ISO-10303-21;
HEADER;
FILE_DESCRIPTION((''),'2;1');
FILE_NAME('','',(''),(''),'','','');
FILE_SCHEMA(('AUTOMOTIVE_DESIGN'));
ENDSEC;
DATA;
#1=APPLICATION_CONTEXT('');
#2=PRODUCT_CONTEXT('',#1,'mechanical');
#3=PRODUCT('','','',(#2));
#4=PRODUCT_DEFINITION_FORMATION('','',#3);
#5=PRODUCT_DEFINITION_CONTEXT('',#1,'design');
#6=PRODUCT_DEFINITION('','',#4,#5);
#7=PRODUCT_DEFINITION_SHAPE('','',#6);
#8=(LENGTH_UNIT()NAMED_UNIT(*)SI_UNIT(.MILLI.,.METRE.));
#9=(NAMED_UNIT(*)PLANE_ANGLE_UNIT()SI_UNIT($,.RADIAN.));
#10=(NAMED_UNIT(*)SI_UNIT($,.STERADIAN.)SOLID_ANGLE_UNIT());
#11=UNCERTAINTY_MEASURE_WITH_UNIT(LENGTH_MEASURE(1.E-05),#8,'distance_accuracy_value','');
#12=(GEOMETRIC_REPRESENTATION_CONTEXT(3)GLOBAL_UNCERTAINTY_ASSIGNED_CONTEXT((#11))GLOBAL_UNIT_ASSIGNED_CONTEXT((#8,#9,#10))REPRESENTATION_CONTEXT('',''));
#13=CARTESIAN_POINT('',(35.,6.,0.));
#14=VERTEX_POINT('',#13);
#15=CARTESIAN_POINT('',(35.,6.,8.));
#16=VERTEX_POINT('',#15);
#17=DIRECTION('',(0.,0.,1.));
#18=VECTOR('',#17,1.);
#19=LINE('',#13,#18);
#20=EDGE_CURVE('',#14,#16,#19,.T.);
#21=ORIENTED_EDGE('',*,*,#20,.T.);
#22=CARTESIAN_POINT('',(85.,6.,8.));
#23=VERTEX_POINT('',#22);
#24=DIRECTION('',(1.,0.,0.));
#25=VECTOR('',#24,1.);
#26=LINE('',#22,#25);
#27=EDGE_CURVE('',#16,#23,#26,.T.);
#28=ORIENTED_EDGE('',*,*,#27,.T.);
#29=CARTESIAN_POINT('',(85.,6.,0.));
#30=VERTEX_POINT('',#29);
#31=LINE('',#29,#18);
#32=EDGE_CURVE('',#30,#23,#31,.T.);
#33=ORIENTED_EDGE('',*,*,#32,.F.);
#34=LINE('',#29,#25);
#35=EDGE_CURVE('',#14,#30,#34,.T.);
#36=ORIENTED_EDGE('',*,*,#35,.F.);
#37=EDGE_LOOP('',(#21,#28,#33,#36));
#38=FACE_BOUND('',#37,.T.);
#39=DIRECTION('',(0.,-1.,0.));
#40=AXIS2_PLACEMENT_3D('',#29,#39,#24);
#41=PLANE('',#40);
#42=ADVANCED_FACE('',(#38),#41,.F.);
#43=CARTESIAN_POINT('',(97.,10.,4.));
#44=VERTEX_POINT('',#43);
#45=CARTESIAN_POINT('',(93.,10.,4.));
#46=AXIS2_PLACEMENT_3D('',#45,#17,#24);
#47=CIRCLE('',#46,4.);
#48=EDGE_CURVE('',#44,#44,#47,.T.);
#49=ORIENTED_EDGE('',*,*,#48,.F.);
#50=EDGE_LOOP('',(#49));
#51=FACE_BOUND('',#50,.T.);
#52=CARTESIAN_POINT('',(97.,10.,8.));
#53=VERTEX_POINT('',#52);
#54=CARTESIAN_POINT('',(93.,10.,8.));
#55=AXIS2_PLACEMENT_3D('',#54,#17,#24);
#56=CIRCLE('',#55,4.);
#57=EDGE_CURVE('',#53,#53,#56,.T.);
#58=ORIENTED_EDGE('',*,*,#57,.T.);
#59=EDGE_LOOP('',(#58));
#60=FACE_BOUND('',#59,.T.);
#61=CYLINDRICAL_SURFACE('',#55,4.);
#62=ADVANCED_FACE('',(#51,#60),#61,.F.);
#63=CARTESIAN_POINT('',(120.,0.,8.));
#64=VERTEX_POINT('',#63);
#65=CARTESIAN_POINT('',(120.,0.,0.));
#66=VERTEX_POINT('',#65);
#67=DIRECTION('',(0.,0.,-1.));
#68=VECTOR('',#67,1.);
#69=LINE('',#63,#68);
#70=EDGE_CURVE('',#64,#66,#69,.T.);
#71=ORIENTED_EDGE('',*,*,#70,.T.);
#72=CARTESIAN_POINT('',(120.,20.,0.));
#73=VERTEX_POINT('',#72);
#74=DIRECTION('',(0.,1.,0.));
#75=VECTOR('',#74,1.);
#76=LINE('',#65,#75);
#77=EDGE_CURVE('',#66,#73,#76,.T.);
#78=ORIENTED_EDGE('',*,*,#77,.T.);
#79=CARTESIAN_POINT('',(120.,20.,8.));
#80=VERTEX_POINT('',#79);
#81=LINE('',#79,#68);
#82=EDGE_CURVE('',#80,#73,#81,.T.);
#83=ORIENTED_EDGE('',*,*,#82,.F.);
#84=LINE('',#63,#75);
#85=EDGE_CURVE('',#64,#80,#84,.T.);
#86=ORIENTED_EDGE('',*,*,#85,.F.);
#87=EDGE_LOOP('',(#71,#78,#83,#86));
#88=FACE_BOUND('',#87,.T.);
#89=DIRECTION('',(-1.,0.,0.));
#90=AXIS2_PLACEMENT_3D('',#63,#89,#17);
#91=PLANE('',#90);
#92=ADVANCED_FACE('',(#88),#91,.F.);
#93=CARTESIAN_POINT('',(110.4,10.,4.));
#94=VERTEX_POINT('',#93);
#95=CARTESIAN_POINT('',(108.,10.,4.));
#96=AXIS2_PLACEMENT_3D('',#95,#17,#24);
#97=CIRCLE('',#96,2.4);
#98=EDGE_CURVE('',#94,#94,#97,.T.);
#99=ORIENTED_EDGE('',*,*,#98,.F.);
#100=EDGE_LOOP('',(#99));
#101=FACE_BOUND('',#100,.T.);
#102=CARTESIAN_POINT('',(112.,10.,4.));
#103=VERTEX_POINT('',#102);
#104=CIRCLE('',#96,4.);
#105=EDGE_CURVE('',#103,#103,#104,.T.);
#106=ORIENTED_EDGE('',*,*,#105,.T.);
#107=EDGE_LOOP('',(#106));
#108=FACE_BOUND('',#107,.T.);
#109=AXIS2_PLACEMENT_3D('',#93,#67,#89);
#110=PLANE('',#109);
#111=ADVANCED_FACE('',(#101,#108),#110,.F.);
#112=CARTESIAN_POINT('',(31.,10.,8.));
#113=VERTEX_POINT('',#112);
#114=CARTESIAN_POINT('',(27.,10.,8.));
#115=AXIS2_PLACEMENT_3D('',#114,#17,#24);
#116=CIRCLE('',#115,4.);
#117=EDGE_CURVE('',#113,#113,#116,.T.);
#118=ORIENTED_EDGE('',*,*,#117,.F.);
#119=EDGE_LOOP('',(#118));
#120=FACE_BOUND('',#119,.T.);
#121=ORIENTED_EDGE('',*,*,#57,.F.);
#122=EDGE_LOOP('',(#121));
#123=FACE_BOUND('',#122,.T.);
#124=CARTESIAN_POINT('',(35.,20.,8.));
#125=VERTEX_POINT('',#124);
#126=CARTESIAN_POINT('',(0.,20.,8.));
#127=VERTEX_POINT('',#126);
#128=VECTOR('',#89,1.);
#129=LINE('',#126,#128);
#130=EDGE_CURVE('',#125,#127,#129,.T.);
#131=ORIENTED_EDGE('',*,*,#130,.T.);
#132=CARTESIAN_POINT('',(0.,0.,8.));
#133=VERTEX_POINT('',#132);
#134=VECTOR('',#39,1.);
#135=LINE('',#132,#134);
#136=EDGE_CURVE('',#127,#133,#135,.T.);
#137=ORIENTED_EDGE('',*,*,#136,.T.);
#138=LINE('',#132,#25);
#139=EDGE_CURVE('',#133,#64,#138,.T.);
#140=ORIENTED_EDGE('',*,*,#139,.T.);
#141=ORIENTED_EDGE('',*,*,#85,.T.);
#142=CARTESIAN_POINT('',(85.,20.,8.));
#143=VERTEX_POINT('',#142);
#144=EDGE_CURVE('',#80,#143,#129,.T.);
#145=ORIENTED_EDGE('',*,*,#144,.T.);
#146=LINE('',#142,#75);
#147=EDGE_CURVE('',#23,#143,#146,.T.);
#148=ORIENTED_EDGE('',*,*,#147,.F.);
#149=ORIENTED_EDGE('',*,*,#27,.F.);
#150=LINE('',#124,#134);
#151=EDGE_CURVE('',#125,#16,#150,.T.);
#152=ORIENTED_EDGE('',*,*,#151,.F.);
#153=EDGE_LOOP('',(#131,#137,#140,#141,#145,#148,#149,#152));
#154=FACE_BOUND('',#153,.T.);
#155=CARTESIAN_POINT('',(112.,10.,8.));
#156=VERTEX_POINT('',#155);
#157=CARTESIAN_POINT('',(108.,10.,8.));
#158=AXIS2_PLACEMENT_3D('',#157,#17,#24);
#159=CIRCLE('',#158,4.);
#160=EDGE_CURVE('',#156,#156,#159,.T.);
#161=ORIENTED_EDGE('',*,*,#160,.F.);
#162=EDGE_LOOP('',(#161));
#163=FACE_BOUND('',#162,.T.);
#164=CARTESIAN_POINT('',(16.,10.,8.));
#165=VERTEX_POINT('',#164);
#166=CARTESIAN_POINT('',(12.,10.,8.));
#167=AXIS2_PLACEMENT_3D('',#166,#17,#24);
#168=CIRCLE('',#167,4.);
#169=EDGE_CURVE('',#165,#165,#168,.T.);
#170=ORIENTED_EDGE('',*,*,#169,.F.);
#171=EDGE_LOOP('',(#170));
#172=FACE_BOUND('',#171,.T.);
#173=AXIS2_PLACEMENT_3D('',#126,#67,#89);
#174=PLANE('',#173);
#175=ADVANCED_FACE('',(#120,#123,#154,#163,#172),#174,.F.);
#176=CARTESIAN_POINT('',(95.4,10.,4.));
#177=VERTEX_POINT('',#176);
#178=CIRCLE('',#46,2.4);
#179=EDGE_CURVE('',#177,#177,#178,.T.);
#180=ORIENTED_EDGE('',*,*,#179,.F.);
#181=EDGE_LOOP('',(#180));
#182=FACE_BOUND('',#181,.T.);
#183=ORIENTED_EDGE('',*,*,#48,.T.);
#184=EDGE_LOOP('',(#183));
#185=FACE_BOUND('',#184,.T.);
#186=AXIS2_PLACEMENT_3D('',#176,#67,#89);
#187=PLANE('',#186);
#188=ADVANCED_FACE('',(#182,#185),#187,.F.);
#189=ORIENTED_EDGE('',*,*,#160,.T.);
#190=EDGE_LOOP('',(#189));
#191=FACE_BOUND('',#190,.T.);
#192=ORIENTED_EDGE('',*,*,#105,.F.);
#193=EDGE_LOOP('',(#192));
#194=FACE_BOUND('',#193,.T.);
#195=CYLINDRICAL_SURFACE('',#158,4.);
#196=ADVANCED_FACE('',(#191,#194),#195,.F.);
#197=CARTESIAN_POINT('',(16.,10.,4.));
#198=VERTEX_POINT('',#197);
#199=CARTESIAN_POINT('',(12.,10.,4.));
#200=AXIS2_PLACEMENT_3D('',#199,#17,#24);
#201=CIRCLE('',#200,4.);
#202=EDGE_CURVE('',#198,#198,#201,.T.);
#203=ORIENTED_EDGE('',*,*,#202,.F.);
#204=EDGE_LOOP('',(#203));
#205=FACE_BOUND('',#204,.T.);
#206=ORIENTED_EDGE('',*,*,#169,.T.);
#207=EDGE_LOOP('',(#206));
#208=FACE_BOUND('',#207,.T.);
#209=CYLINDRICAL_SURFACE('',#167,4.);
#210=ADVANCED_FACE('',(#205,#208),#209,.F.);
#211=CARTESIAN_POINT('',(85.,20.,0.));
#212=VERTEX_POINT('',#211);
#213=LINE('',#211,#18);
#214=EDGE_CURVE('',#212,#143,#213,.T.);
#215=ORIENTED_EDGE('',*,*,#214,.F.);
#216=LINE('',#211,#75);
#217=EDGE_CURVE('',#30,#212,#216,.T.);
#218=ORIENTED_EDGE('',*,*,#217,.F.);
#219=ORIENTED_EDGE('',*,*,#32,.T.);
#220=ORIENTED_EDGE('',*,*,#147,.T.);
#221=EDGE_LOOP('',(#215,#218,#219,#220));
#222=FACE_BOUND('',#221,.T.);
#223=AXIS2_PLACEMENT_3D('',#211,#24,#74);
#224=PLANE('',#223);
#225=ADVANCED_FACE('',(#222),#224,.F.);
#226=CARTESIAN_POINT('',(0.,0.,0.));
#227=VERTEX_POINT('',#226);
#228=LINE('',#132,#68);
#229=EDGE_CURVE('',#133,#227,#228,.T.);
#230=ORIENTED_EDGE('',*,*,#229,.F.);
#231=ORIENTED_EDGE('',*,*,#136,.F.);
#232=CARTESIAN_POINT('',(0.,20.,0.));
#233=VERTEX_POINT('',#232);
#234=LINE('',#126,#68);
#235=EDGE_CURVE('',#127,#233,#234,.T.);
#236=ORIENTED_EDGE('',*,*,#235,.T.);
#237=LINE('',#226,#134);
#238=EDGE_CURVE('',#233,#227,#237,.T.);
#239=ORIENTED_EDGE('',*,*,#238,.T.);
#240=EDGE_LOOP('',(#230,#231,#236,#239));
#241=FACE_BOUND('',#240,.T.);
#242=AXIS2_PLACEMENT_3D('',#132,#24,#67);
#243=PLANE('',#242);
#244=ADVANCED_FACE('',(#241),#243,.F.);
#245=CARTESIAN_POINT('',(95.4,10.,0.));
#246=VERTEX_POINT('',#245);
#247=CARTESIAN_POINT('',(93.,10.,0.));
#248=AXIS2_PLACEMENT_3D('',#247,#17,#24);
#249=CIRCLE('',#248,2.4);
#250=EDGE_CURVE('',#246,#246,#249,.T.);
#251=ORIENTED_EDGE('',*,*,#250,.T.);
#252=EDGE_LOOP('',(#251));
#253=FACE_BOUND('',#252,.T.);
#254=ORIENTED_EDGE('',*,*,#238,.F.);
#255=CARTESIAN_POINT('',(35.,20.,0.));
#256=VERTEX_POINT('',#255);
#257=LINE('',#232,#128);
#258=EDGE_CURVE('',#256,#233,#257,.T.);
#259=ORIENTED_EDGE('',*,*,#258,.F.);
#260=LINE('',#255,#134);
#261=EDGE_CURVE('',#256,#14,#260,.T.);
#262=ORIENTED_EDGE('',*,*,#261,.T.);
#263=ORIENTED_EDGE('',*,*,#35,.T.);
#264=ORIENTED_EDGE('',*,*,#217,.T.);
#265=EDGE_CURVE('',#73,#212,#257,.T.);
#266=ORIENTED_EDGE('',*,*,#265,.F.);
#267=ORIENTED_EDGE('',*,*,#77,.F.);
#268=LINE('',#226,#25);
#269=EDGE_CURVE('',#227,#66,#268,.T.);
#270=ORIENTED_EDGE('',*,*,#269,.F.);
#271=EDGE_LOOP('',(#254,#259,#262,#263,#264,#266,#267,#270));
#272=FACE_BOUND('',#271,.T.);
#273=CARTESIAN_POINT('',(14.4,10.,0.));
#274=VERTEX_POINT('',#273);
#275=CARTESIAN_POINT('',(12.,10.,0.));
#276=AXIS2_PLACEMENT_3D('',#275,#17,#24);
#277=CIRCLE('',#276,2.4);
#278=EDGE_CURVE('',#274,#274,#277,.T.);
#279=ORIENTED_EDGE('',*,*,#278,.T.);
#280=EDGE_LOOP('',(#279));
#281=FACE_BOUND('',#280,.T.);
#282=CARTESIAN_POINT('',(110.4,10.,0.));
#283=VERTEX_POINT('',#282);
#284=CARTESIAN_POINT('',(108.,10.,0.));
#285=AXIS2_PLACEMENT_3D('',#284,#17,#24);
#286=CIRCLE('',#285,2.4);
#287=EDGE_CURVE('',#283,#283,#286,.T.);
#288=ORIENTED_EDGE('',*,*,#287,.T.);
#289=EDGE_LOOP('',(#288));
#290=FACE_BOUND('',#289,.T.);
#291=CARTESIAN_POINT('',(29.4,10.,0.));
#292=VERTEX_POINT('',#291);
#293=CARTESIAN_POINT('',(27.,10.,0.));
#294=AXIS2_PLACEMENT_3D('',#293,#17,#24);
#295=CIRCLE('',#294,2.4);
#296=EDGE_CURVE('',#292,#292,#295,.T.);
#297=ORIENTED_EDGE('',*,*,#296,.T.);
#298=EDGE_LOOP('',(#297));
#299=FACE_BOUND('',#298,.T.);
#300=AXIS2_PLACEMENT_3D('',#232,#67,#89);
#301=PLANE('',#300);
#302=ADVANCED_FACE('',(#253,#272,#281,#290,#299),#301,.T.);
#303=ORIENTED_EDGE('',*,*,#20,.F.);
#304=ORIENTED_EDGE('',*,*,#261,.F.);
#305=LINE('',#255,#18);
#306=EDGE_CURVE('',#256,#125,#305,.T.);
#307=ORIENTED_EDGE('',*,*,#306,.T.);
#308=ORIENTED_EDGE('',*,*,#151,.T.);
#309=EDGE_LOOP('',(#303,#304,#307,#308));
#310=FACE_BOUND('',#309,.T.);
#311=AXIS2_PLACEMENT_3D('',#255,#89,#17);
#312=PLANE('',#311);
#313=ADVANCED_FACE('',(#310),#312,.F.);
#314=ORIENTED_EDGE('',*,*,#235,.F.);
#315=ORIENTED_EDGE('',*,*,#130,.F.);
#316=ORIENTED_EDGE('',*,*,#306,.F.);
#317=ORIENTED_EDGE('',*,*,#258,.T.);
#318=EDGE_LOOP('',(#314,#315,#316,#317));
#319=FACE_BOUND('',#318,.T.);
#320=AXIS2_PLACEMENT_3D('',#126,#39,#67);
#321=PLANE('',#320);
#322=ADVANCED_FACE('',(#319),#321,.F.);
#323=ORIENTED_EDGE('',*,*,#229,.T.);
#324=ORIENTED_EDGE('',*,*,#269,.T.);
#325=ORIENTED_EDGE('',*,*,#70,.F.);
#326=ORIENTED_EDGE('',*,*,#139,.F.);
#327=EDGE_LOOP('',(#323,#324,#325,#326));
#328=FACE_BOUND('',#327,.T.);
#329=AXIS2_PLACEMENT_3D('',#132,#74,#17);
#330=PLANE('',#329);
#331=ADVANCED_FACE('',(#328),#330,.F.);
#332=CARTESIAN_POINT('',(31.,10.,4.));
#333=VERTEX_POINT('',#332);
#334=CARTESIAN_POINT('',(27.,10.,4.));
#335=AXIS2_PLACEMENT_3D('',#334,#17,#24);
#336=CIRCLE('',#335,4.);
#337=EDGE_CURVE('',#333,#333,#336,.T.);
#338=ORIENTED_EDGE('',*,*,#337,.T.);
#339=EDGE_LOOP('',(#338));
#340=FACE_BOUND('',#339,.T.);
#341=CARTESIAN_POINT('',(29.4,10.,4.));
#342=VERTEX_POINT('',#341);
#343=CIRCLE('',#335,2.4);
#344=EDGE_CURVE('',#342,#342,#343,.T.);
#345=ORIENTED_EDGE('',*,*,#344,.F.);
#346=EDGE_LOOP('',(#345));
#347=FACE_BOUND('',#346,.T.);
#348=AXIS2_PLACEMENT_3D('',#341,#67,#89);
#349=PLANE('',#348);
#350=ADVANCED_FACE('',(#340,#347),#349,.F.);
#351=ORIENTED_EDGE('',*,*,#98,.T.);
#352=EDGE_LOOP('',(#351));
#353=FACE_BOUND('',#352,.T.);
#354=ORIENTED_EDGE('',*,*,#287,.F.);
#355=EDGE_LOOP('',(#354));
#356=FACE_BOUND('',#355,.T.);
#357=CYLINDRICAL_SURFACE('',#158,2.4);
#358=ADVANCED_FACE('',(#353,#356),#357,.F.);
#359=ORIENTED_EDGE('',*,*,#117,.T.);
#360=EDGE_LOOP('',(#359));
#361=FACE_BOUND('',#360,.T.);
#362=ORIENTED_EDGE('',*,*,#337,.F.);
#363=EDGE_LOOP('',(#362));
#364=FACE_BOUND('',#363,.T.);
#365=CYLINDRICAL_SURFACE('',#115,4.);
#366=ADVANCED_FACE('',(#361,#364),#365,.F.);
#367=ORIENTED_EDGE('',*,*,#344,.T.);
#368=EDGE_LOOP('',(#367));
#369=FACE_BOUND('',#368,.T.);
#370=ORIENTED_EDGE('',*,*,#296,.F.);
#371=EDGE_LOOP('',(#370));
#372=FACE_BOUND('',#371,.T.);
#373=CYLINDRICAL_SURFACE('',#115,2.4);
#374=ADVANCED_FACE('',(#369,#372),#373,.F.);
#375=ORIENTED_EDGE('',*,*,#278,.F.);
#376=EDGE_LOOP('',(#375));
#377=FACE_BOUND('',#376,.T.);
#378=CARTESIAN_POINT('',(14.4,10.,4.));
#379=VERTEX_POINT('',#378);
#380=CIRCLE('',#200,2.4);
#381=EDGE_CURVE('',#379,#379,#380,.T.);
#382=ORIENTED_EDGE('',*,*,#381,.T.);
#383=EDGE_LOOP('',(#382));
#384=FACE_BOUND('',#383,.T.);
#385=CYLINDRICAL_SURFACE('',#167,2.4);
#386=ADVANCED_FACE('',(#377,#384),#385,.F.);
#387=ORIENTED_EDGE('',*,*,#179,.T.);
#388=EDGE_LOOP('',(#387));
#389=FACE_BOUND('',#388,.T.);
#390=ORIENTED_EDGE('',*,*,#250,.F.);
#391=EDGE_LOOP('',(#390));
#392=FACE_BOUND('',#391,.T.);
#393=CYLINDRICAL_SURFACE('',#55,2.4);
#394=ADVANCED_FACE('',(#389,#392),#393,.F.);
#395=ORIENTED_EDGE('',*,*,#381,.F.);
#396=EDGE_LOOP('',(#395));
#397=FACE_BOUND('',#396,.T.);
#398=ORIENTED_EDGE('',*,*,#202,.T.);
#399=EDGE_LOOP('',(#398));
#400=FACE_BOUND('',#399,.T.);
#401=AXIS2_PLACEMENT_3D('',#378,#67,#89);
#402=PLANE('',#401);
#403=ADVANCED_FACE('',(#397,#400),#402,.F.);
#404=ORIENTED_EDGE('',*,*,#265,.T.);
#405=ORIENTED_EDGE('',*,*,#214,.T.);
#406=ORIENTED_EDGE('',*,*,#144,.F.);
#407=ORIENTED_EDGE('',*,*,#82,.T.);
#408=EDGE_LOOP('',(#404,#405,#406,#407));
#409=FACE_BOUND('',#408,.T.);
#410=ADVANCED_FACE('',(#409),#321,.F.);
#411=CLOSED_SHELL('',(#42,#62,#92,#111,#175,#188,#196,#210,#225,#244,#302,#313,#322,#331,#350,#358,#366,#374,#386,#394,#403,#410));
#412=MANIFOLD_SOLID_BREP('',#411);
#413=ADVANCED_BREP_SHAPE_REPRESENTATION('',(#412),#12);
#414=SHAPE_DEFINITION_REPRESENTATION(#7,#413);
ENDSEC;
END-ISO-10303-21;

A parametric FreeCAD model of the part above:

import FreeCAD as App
import Part
import Sketcher

V = App.Vector
Q = App.Units.Quantity


def add_polygon(sketch, points):
    """Adds a closed chain of lines whose ends are joined by coincident constraints."""
    first, n = sketch.GeometryCount, len(points)
    for a, b in zip(points, points[1:] + points[:1]):
        sketch.addGeometry(Part.LineSegment(App.Vector(*a, 0), App.Vector(*b, 0)), False)
    for i in range(n):
        sketch.addConstraint(Sketcher.Constraint("Coincident", first + i, 2, first + (i + 1) % n, 1))

doc = App.newDocument("Part")
params = doc.addObject("Spreadsheet::Sheet", "Params")
for row, (alias, value) in enumerate([
    ("sketch1_width", "120 mm"),
    ("sketch1_height", "20 mm"),
    ("pad1_length", "8 mm"),
    ("sketch2_width", "50 mm"),
    ("sketch2_height", "14 mm"),
    ("sketch3_diameter", "4.8 mm"),
    ("hole_diameter", "4.8 mm"),
    ("hole_cbore_diameter", "8 mm"),
    ("hole_cbore_depth", "4 mm"),
], start=1):
    params.set(f"A{row}", alias)
    params.set(f"B{row}", "=" + value)
    params.setAlias(f"B{row}", alias)

body = doc.addObject("PartDesign::Body", "Body")

# Sketch on XY plane
sketch1 = doc.addObject("Sketcher::SketchObject", "Sketch")
body.addObject(sketch1)
sketch1.AttachmentSupport = (doc.XY_Plane, [""])
sketch1.MapMode = "FlatFace"
add_polygon(sketch1, [(0, 20), (0, 0), (120, 0), (120, 20)])  # lines 0-3
sketch1.addConstraint([
    Sketcher.Constraint("Vertical", 0),
    Sketcher.Constraint("Horizontal", 1),
    Sketcher.Constraint("Vertical", 2),
    Sketcher.Constraint("Horizontal", 3),
    Sketcher.Constraint("Coincident", 0, 2, -1, 1),
    Sketcher.Constraint("DistanceX", 1, 1, 1, 2, Q("120 mm")),
    Sketcher.Constraint("DistanceY", 0, 2, 0, 1, Q("20 mm")),
])
sketch1.setExpression("Constraints[9]", "Params.sketch1_width")
sketch1.setExpression("Constraints[10]", "Params.sketch1_height")
pad1 = doc.addObject("PartDesign::Pad", "Pad")
body.addObject(pad1)
pad1.Profile = sketch1
pad1.setExpression("Length", "Params.pad1_length")

# Sketch on XY plane
sketch2 = doc.addObject("Sketcher::SketchObject", "Sketch001")
body.addObject(sketch2)
sketch2.AttachmentSupport = (doc.XY_Plane, [""])
sketch2.MapMode = "FlatFace"
sketch2.AttachmentOffset = App.Placement(V(0, 0, 8), App.Rotation())
add_polygon(sketch2, [(35, 20), (35, 6), (85, 6), (85, 20)])  # lines 0-3
sketch2.addConstraint([
    Sketcher.Constraint("Vertical", 0),
    Sketcher.Constraint("Horizontal", 1),
    Sketcher.Constraint("Vertical", 2),
    Sketcher.Constraint("Horizontal", 3),
    Sketcher.Constraint("DistanceX", 1, 1, 1, 2, Q("50 mm")),
    Sketcher.Constraint("DistanceY", 0, 2, 0, 1, Q("14 mm")),
    Sketcher.Constraint("DistanceX", -1, 1, 0, 2, Q("35 mm")),
    Sketcher.Constraint("DistanceY", -1, 1, 0, 2, Q("6 mm")),
])
sketch2.setExpression("Constraints[8]", "Params.sketch2_width")
sketch2.setExpression("Constraints[9]", "Params.sketch2_height")
pocket1 = doc.addObject("PartDesign::Pocket", "Pocket")
body.addObject(pocket1)
pocket1.Profile = sketch2
pocket1.Type = "ThroughAll"

# Sketch on XY plane
sketch3 = doc.addObject("Sketcher::SketchObject", "Sketch002")
body.addObject(sketch3)
sketch3.AttachmentSupport = (doc.XY_Plane, [""])
sketch3.MapMode = "FlatFace"
sketch3.AttachmentOffset = App.Placement(V(0, 0, 8), App.Rotation())
sketch3.addGeometry([
    Part.Circle(V(12, 10, 0), V(0, 0, 1), 2.4),
    Part.Circle(V(27, 10, 0), V(0, 0, 1), 2.4),
    Part.Circle(V(93, 10, 0), V(0, 0, 1), 2.4),
    Part.Circle(V(108, 10, 0), V(0, 0, 1), 2.4),
], False)
sketch3.addConstraint([
    Sketcher.Constraint("Equal", 0, 1),
    Sketcher.Constraint("Equal", 1, 2),
    Sketcher.Constraint("Equal", 2, 3),
    Sketcher.Constraint("Horizontal", 0, 3, 1, 3),
    Sketcher.Constraint("Horizontal", 1, 3, 2, 3),
    Sketcher.Constraint("Horizontal", 2, 3, 3, 3),
    Sketcher.Constraint("Diameter", 0, Q("4.8 mm")),
    Sketcher.Constraint("DistanceX", -1, 1, 0, 3, Q("12 mm")),
    Sketcher.Constraint("DistanceY", -1, 1, 0, 3, Q("10 mm")),
    Sketcher.Constraint("DistanceX", -1, 1, 1, 3, Q("27 mm")),
    Sketcher.Constraint("DistanceX", -1, 1, 2, 3, Q("93 mm")),
    Sketcher.Constraint("DistanceX", -1, 1, 3, 3, Q("108 mm")),
])
sketch3.setExpression("Constraints[6]", "Params.sketch3_diameter")
doc.recompute()
hole = doc.addObject("PartDesign::Hole", "Hole")
body.addObject(hole)
hole.Profile = sketch3
hole.ThreadType = "None"
hole.setExpression("Diameter", "Params.hole_diameter")
hole.DepthType = "ThroughAll"
hole.HoleCutType = "Counterbore"
hole.setExpression("HoleCutDiameter", "Params.hole_cbore_diameter")
hole.setExpression("HoleCutDepth", "Params.hole_cbore_depth")

doc.recompute()
